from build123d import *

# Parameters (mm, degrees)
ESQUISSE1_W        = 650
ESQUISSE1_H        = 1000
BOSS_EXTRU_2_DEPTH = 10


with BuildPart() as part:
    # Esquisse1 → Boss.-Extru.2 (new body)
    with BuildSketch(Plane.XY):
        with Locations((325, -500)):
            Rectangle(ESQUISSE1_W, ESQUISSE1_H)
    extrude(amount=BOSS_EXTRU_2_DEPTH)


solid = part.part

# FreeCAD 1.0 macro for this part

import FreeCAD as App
import Part
import Sketcher


def add_polygon(sketch, points):
    """Adds a closed chain of lines whose ends are joined by coincident constraints."""
    first, n = sketch.GeometryCount, len(points)
    for a, b in zip(points, points[1:] + points[:1]):
        sketch.addGeometry(Part.LineSegment(App.Vector(*a, 0), App.Vector(*b, 0)), False)
    for i in range(n):
        sketch.addConstraint(Sketcher.Constraint("Coincident", first + i, 2, first + (i + 1) % n, 1))

doc = App.newDocument("Part")
body = doc.addObject("PartDesign::Body", "Body")

sketch1 = body.newObject("Sketcher::SketchObject", "Sketch")
sketch1.AttachmentSupport = (doc.getObject("XY_Plane"), [""])
sketch1.MapMode = "FlatFace"
add_polygon(sketch1, [(0, 0), (0, -1000), (650, -1000), (650, 0)])
sketch1.addConstraint([
    Sketcher.Constraint("Vertical", 0),
    Sketcher.Constraint("Horizontal", 1),
    Sketcher.Constraint("Vertical", 2),
    Sketcher.Constraint("Horizontal", 3),
    Sketcher.Constraint("Coincident", 3, 2, -1, 1),
    Sketcher.Constraint("DistanceX", 1, 1, 1, 2, 650.0),
    Sketcher.Constraint("DistanceY", 0, 2, 0, 1, 1000.0),
])
pad1 = body.newObject("PartDesign::Pad", "Pad")
pad1.Profile = sketch1
pad1.Length = 10

doc.recompute()
